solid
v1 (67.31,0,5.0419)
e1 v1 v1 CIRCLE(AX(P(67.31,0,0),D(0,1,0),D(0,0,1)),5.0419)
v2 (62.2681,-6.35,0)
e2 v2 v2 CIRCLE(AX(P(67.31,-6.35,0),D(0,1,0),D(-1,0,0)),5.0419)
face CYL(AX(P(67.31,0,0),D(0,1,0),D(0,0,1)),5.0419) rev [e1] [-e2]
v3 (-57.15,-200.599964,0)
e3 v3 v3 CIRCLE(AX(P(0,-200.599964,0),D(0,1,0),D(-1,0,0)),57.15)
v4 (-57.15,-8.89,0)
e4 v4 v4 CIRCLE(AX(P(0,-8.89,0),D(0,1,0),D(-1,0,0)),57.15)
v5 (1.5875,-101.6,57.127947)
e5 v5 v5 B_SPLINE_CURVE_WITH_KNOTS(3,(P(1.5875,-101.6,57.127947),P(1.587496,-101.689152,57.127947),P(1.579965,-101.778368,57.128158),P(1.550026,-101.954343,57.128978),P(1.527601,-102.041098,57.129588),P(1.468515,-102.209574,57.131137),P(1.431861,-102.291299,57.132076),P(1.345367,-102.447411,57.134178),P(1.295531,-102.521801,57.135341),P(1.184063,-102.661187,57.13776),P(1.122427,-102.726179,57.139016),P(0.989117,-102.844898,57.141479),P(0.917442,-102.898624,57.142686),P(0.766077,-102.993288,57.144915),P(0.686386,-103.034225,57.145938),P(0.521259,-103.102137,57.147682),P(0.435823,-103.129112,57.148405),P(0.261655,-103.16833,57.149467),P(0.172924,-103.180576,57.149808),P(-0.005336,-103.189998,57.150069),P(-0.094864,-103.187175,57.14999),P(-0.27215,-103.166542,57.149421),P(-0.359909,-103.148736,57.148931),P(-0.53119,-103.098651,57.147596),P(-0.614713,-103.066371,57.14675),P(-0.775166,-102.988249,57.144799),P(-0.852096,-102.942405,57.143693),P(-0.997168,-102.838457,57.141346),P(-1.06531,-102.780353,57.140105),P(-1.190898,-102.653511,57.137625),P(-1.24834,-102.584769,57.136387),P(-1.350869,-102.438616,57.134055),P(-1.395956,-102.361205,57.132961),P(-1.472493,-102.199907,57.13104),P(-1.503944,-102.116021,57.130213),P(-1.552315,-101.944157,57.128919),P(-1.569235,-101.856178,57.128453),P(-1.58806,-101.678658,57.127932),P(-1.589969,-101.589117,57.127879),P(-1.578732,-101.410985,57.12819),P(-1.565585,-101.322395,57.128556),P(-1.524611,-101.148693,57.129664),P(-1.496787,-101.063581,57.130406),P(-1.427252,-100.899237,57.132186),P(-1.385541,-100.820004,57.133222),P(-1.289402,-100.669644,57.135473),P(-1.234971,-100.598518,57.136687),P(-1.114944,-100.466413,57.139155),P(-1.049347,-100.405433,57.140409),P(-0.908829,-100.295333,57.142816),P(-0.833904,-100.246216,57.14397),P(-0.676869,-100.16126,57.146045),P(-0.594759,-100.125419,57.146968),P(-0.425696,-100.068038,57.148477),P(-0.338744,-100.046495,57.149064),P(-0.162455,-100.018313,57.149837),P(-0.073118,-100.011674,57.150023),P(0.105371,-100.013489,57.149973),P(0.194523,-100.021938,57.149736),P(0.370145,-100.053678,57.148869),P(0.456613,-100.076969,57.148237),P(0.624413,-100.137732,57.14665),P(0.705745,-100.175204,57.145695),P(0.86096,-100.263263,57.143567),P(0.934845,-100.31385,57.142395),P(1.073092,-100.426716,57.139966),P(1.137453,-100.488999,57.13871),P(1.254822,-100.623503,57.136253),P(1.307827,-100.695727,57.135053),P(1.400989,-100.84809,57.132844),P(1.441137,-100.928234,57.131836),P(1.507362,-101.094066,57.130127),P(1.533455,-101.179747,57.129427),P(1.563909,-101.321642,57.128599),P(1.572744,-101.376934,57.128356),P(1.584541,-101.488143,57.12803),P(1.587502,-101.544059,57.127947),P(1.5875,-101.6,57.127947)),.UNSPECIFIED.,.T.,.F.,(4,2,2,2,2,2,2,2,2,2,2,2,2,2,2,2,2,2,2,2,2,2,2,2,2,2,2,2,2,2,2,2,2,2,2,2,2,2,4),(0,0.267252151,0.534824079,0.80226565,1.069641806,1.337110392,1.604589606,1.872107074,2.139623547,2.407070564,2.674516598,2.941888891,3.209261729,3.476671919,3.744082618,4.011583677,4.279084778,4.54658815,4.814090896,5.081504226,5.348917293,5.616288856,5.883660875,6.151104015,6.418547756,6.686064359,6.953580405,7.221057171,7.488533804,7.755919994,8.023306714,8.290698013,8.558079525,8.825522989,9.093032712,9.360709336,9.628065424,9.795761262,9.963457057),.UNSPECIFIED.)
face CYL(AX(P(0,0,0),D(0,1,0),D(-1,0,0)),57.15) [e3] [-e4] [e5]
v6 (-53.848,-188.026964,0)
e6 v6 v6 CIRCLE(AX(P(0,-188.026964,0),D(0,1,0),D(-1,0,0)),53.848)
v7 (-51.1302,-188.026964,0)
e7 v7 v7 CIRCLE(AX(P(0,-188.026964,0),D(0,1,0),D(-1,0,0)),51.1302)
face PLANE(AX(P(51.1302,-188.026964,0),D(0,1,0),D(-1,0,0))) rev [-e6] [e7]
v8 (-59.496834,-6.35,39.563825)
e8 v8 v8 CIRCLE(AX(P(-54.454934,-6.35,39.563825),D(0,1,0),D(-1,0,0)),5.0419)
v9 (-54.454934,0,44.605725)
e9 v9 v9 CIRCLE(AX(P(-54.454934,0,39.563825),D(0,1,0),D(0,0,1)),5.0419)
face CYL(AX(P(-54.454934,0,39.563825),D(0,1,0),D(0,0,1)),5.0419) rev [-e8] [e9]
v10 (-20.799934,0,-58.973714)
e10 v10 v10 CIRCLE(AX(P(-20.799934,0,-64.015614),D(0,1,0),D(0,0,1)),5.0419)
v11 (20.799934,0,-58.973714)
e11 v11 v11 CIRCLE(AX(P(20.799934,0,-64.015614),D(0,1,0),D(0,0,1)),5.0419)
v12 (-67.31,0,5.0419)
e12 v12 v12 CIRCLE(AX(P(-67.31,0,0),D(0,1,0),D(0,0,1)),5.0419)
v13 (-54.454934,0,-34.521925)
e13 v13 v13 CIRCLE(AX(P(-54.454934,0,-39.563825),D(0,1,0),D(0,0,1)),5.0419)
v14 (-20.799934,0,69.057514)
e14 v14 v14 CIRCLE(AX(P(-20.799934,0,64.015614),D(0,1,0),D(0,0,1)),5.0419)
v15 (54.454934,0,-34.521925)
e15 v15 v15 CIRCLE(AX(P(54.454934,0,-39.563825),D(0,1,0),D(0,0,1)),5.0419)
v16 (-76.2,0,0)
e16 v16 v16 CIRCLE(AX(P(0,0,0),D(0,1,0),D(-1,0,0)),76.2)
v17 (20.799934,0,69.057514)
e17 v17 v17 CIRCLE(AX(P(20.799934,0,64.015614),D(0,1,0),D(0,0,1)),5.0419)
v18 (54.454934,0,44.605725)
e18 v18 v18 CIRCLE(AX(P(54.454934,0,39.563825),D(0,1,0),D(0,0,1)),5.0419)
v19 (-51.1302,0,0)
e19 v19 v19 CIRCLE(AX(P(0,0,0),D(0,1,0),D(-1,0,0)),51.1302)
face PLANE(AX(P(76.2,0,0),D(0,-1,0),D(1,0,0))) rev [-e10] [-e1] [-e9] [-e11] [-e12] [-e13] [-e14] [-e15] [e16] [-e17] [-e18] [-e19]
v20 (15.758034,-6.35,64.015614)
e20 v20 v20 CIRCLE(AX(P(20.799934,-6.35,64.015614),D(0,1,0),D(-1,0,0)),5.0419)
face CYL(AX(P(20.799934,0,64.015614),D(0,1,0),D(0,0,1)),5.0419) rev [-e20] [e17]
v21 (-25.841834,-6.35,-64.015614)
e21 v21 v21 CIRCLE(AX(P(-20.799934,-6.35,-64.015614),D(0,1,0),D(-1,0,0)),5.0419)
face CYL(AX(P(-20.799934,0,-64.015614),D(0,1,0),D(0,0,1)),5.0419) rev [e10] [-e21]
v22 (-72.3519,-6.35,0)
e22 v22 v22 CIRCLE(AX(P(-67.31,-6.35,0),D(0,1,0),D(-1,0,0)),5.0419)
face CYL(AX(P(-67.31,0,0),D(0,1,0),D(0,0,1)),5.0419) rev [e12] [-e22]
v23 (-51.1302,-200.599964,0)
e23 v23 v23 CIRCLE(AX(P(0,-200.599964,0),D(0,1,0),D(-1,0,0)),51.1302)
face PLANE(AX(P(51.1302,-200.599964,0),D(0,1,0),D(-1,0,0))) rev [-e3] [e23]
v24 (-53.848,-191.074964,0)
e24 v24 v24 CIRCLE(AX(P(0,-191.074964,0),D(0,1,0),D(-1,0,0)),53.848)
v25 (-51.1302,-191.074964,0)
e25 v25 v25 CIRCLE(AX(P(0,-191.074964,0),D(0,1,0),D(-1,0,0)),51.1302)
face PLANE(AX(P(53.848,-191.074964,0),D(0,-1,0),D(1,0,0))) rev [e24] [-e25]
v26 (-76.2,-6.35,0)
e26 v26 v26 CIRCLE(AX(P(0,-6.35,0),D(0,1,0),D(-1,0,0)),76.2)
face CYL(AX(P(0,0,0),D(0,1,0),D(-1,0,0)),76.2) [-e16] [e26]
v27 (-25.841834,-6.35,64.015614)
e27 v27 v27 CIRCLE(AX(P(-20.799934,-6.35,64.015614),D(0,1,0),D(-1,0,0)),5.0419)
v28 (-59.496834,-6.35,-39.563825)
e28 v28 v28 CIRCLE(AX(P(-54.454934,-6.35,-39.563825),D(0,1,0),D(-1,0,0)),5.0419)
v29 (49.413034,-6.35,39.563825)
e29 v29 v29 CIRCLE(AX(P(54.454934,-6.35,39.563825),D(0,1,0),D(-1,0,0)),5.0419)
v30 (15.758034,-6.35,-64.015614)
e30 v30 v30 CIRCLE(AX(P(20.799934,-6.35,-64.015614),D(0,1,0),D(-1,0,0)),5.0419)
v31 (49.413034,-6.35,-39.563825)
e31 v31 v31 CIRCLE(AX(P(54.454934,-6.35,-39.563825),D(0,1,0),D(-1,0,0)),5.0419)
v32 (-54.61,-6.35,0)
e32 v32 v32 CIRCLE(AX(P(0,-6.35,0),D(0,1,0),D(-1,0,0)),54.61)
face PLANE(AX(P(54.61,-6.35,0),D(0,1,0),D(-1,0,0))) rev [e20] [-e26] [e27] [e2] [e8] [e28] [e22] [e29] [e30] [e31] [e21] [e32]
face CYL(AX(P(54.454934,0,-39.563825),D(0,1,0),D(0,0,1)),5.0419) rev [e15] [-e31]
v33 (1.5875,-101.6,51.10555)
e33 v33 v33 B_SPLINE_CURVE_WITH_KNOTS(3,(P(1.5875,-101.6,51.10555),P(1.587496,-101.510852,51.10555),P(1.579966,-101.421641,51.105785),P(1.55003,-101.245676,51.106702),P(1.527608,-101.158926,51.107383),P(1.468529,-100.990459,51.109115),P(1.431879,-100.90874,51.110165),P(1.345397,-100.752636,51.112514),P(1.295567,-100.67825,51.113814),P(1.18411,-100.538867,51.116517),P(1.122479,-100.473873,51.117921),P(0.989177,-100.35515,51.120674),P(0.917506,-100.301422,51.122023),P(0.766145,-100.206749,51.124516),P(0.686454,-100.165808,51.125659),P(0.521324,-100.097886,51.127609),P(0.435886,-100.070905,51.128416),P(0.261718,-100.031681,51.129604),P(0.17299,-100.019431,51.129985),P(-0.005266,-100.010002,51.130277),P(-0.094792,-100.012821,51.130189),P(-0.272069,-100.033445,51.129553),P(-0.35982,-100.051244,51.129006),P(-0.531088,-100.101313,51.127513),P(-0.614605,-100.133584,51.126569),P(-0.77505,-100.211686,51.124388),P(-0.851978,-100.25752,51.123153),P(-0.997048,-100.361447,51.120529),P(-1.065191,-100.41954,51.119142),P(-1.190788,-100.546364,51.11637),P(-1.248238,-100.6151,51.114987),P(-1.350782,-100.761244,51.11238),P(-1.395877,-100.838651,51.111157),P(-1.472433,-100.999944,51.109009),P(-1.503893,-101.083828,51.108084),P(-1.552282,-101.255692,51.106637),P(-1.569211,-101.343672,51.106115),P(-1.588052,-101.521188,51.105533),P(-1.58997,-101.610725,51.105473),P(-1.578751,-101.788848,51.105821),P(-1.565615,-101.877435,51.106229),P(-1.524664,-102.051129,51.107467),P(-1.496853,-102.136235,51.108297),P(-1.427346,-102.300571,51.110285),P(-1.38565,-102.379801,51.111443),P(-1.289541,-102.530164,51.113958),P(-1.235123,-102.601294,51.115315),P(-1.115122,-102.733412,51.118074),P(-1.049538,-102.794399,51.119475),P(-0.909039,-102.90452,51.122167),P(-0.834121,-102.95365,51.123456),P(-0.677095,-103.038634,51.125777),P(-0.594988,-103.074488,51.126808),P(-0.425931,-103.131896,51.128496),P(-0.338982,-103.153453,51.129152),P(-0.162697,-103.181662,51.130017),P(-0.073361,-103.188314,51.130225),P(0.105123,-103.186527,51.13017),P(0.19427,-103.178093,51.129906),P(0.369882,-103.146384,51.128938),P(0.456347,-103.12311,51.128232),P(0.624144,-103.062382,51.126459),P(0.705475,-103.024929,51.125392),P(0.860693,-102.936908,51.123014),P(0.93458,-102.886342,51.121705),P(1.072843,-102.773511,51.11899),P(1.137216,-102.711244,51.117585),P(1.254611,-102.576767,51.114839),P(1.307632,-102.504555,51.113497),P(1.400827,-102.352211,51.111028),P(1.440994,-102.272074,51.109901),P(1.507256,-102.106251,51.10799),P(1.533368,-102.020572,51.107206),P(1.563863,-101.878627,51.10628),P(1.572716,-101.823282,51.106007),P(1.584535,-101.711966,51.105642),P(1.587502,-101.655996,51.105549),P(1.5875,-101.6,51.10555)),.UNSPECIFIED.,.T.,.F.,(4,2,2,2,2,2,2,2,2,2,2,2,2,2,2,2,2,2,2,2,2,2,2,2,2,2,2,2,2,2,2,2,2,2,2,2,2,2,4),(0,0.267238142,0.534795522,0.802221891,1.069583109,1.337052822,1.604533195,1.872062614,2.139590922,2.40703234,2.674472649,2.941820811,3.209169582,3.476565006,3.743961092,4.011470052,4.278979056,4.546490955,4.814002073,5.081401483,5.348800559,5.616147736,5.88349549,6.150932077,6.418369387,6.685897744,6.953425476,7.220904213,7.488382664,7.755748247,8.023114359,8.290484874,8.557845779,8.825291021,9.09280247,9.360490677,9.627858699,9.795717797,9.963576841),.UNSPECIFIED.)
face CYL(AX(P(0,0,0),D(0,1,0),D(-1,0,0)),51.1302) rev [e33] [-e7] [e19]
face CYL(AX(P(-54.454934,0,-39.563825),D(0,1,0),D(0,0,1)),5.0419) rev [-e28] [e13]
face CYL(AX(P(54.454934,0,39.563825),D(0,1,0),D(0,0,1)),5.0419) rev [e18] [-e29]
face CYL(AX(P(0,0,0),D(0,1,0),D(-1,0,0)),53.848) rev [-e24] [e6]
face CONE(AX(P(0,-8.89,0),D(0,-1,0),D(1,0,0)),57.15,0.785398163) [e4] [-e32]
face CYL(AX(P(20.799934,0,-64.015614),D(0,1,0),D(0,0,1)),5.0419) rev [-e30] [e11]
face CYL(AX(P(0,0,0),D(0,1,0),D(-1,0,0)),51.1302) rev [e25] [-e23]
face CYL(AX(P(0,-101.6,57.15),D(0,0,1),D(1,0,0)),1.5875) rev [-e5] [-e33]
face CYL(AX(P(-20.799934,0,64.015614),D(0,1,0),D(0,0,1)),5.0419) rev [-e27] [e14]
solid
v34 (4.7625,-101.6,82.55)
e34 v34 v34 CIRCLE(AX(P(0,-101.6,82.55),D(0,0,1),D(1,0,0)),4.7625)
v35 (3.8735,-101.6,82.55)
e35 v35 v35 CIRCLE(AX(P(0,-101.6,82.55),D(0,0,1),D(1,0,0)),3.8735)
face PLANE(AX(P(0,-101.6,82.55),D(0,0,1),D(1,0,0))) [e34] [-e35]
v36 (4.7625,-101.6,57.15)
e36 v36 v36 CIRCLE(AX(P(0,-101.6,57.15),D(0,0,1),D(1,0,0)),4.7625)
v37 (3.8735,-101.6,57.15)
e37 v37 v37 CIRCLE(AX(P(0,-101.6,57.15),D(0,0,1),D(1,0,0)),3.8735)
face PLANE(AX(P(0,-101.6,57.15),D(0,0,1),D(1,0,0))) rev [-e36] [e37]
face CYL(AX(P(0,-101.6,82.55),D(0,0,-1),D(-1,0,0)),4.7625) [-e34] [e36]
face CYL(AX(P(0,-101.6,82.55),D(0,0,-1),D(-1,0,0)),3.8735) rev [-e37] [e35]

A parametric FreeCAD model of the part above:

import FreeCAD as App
import Part
import Sketcher
Q = App.Units.Quantity


def add_polygon(sketch, points):
    """Adds a closed chain of lines whose ends are joined by coincident constraints."""
    first, n = sketch.GeometryCount, len(points)
    for a, b in zip(points, points[1:] + points[:1]):
        sketch.addGeometry(Part.LineSegment(App.Vector(*a, 0), App.Vector(*b, 0)), False)
    for i in range(n):
        sketch.addConstraint(Sketcher.Constraint("Coincident", first + i, 2, first + (i + 1) % n, 1))

doc = App.newDocument("Part")
body = doc.addObject("PartDesign::Body", "Body")

sketch1 = body.newObject("Sketcher::SketchObject", "Sketch")
sketch1.AttachmentSupport = (doc.getObject("XY_Plane"), [""])
sketch1.MapMode = "FlatFace"
add_polygon(sketch1, [(51.1302, 0), (51.1302, -188.026964), (53.848, -188.026964), (53.848, -191.074964), (51.1302, -191.074964), (51.1302, -200.599964), (57.15, -200.599964), (57.15, -8.89), (54.61, -6.35), (76.2, -6.35), (76.2, 0)])
sketch1.addConstraint(Sketcher.Constraint("Vertical", 0))
sketch1.addConstraint(Sketcher.Constraint("Horizontal", 1))
sketch1.addConstraint(Sketcher.Constraint("Vertical", 2))
sketch1.addConstraint(Sketcher.Constraint("Horizontal", 3))
sketch1.addConstraint(Sketcher.Constraint("Vertical", 4))
sketch1.addConstraint(Sketcher.Constraint("Horizontal", 5))
sketch1.addConstraint(Sketcher.Constraint("Vertical", 6))
sketch1.addConstraint(Sketcher.Constraint("Horizontal", 8))
sketch1.addConstraint(Sketcher.Constraint("Vertical", 9))
sketch1.addConstraint(Sketcher.Constraint("Horizontal", 10))
sketch1.addConstraint(Sketcher.Constraint("PointOnObject", 9, 2, -1))
sketch1.addConstraint(Sketcher.Constraint("Vertical", 0, 2, 3, 2))
sketch1.addConstraint(Sketcher.Constraint("DistanceX", -1, 1, 8, 2, Q("3 in")))
sketch1.addConstraint(Sketcher.Constraint("Angle", 7, Q("135 deg")))
sketch1.addConstraint(Sketcher.Constraint("DistanceX", 8, 1, 8, 2, Q("0.85 in")))
sketch1.addConstraint(Sketcher.Constraint("DistanceY", 2, 2, 2, 1, Q("0.12 in")))
sketch1.addConstraint(Sketcher.Constraint("DistanceY", 9, 1, 9, 2, Q("0.25 in")))
sketch1.addConstraint(Sketcher.Constraint("DistanceX", 7, 2, 6, 2, Q("0.1 in")))
sketch1.addConstraint(Sketcher.Constraint("DistanceX", 1, 1, 1, 2, Q("0.107 in")))
sketch1.addConstraint(Sketcher.Constraint("DistanceX", 5, 1, 5, 2, Q("0.237 in")))
sketch1.addConstraint(Sketcher.Constraint("DistanceY", 4, 2, 4, 1, Q("0.375 in")))
sketch1.addConstraint(Sketcher.Constraint("DistanceY", 0, 2, 0, 1, 188.026964))
revolution = body.newObject("PartDesign::Revolution", "Revolution")
revolution.Profile = sketch1
revolution.ReferenceAxis = (sketch1, ["V_Axis"])
revolution.Angle = 360

sketch2 = body.newObject("Sketcher::SketchObject", "Sketch001")
sketch2.AttachmentSupport = (doc.getObject("XZ_Plane"), [""])
sketch2.MapMode = "FlatFace"
sketch2.addGeometry(Part.Circle(App.Vector(67.31, 0, 0), App.Vector(0, 0, 1), 5.0419), False)
sketch2.addConstraint(Sketcher.Constraint("PointOnObject", 0, 3, -1))
sketch2.addConstraint(Sketcher.Constraint("Diameter", 0, Q("0.397 in")))
sketch2.addConstraint(Sketcher.Constraint("DistanceX", -1, 1, 0, 3, Q("2.65 in")))
doc.recompute()
hole = body.newObject("PartDesign::Hole", "Hole")
hole.Profile = sketch2
hole.ThreadType = "None"
hole.Diameter = Q("0.397 in")
hole.DepthType = "ThroughAll"
hole.Reversed = True
doc.recompute()

polarpattern = body.newObject("PartDesign::PolarPattern", "PolarPattern")
polarpattern.Originals = [hole]
polarpattern.Axis = (doc.getObject("Y_Axis"), [""])
polarpattern.Angle = 360
polarpattern.Occurrences = 10
body.Tip = polarpattern

sketch3 = body.newObject("Sketcher::SketchObject", "Sketch002")
sketch3.AttachmentSupport = (doc.getObject("YZ_Plane"), [""])
sketch3.MapMode = "FlatFace"
add_polygon(sketch3, [(-101.6, 30.796134), (-101.6, 57.15), (-103.1875, 57.15), (-103.1875, 31.75)])
sketch3.addGeometry(Part.LineSegment(App.Vector(-101.6, 57.15, 0), App.Vector(-101.6, 30.796134, 0)), True)
sketch3.addConstraint(Sketcher.Constraint("Vertical", 0))
sketch3.addConstraint(Sketcher.Constraint("Horizontal", 1))
sketch3.addConstraint(Sketcher.Constraint("Vertical", 2))
sketch3.addConstraint(Sketcher.Constraint("Vertical", 4))
sketch3.addConstraint(Sketcher.Constraint("Coincident", 4, 1, 0, 2))
sketch3.addConstraint(Sketcher.Constraint("Equal", 0, 4))
sketch3.addConstraint(Sketcher.Constraint("DistanceY", 2, 2, 2, 1, Q("1 in")))
sketch3.addConstraint(Sketcher.Constraint("DistanceX", 0, 2, -1, 1, Q("4 in")))
sketch3.addConstraint(Sketcher.Constraint("Angle", 3, Q("-31 deg")))
sketch3.addConstraint(Sketcher.Constraint("DistanceX", 1, 2, 1, 1, Q("0.0625 in")))
sketch3.addConstraint(Sketcher.Constraint("DistanceY", -1, 1, 0, 2, Q("2.25 in")))
groove = body.newObject("PartDesign::Groove", "Groove")
groove.Profile = sketch3
groove.ReferenceAxis = (sketch3, ["Axis0"])
groove.Angle = 360
body2 = doc.addObject("PartDesign::Body", "Body001")

sketch4 = body2.newObject("Sketcher::SketchObject", "Sketch003")
sketch4.AttachmentSupport = (doc.getObject("XY_Plane001"), [""])
sketch4.MapMode = "FlatFace"
sketch4.AttachmentOffset = App.Placement(App.Vector(0, 0, 2.25 * 25.4), App.Rotation())
sketch4.addGeometry(Part.Circle(App.Vector(0, -101.6, 0), App.Vector(0, 0, 1), 4.7625), False)
sketch4.addGeometry(Part.Circle(App.Vector(0, -101.6, 0), App.Vector(0, 0, 1), 3.8735), False)
sketch4.addConstraint(Sketcher.Constraint("Coincident", 1, 3, 0, 3))
sketch4.addConstraint(Sketcher.Constraint("PointOnObject", 0, 3, -2))
sketch4.addConstraint(Sketcher.Constraint("Diameter", 0, Q("0.375 in")))
sketch4.addConstraint(Sketcher.Constraint("Diameter", 1, Q("0.305 in")))
sketch4.addConstraint(Sketcher.Constraint("DistanceY", 0, 3, -1, 1, Q("4 in")))
pad1 = body2.newObject("PartDesign::Pad", "Pad")
pad1.Profile = sketch4
pad1.Length = Q("1 in")

doc.recompute()
